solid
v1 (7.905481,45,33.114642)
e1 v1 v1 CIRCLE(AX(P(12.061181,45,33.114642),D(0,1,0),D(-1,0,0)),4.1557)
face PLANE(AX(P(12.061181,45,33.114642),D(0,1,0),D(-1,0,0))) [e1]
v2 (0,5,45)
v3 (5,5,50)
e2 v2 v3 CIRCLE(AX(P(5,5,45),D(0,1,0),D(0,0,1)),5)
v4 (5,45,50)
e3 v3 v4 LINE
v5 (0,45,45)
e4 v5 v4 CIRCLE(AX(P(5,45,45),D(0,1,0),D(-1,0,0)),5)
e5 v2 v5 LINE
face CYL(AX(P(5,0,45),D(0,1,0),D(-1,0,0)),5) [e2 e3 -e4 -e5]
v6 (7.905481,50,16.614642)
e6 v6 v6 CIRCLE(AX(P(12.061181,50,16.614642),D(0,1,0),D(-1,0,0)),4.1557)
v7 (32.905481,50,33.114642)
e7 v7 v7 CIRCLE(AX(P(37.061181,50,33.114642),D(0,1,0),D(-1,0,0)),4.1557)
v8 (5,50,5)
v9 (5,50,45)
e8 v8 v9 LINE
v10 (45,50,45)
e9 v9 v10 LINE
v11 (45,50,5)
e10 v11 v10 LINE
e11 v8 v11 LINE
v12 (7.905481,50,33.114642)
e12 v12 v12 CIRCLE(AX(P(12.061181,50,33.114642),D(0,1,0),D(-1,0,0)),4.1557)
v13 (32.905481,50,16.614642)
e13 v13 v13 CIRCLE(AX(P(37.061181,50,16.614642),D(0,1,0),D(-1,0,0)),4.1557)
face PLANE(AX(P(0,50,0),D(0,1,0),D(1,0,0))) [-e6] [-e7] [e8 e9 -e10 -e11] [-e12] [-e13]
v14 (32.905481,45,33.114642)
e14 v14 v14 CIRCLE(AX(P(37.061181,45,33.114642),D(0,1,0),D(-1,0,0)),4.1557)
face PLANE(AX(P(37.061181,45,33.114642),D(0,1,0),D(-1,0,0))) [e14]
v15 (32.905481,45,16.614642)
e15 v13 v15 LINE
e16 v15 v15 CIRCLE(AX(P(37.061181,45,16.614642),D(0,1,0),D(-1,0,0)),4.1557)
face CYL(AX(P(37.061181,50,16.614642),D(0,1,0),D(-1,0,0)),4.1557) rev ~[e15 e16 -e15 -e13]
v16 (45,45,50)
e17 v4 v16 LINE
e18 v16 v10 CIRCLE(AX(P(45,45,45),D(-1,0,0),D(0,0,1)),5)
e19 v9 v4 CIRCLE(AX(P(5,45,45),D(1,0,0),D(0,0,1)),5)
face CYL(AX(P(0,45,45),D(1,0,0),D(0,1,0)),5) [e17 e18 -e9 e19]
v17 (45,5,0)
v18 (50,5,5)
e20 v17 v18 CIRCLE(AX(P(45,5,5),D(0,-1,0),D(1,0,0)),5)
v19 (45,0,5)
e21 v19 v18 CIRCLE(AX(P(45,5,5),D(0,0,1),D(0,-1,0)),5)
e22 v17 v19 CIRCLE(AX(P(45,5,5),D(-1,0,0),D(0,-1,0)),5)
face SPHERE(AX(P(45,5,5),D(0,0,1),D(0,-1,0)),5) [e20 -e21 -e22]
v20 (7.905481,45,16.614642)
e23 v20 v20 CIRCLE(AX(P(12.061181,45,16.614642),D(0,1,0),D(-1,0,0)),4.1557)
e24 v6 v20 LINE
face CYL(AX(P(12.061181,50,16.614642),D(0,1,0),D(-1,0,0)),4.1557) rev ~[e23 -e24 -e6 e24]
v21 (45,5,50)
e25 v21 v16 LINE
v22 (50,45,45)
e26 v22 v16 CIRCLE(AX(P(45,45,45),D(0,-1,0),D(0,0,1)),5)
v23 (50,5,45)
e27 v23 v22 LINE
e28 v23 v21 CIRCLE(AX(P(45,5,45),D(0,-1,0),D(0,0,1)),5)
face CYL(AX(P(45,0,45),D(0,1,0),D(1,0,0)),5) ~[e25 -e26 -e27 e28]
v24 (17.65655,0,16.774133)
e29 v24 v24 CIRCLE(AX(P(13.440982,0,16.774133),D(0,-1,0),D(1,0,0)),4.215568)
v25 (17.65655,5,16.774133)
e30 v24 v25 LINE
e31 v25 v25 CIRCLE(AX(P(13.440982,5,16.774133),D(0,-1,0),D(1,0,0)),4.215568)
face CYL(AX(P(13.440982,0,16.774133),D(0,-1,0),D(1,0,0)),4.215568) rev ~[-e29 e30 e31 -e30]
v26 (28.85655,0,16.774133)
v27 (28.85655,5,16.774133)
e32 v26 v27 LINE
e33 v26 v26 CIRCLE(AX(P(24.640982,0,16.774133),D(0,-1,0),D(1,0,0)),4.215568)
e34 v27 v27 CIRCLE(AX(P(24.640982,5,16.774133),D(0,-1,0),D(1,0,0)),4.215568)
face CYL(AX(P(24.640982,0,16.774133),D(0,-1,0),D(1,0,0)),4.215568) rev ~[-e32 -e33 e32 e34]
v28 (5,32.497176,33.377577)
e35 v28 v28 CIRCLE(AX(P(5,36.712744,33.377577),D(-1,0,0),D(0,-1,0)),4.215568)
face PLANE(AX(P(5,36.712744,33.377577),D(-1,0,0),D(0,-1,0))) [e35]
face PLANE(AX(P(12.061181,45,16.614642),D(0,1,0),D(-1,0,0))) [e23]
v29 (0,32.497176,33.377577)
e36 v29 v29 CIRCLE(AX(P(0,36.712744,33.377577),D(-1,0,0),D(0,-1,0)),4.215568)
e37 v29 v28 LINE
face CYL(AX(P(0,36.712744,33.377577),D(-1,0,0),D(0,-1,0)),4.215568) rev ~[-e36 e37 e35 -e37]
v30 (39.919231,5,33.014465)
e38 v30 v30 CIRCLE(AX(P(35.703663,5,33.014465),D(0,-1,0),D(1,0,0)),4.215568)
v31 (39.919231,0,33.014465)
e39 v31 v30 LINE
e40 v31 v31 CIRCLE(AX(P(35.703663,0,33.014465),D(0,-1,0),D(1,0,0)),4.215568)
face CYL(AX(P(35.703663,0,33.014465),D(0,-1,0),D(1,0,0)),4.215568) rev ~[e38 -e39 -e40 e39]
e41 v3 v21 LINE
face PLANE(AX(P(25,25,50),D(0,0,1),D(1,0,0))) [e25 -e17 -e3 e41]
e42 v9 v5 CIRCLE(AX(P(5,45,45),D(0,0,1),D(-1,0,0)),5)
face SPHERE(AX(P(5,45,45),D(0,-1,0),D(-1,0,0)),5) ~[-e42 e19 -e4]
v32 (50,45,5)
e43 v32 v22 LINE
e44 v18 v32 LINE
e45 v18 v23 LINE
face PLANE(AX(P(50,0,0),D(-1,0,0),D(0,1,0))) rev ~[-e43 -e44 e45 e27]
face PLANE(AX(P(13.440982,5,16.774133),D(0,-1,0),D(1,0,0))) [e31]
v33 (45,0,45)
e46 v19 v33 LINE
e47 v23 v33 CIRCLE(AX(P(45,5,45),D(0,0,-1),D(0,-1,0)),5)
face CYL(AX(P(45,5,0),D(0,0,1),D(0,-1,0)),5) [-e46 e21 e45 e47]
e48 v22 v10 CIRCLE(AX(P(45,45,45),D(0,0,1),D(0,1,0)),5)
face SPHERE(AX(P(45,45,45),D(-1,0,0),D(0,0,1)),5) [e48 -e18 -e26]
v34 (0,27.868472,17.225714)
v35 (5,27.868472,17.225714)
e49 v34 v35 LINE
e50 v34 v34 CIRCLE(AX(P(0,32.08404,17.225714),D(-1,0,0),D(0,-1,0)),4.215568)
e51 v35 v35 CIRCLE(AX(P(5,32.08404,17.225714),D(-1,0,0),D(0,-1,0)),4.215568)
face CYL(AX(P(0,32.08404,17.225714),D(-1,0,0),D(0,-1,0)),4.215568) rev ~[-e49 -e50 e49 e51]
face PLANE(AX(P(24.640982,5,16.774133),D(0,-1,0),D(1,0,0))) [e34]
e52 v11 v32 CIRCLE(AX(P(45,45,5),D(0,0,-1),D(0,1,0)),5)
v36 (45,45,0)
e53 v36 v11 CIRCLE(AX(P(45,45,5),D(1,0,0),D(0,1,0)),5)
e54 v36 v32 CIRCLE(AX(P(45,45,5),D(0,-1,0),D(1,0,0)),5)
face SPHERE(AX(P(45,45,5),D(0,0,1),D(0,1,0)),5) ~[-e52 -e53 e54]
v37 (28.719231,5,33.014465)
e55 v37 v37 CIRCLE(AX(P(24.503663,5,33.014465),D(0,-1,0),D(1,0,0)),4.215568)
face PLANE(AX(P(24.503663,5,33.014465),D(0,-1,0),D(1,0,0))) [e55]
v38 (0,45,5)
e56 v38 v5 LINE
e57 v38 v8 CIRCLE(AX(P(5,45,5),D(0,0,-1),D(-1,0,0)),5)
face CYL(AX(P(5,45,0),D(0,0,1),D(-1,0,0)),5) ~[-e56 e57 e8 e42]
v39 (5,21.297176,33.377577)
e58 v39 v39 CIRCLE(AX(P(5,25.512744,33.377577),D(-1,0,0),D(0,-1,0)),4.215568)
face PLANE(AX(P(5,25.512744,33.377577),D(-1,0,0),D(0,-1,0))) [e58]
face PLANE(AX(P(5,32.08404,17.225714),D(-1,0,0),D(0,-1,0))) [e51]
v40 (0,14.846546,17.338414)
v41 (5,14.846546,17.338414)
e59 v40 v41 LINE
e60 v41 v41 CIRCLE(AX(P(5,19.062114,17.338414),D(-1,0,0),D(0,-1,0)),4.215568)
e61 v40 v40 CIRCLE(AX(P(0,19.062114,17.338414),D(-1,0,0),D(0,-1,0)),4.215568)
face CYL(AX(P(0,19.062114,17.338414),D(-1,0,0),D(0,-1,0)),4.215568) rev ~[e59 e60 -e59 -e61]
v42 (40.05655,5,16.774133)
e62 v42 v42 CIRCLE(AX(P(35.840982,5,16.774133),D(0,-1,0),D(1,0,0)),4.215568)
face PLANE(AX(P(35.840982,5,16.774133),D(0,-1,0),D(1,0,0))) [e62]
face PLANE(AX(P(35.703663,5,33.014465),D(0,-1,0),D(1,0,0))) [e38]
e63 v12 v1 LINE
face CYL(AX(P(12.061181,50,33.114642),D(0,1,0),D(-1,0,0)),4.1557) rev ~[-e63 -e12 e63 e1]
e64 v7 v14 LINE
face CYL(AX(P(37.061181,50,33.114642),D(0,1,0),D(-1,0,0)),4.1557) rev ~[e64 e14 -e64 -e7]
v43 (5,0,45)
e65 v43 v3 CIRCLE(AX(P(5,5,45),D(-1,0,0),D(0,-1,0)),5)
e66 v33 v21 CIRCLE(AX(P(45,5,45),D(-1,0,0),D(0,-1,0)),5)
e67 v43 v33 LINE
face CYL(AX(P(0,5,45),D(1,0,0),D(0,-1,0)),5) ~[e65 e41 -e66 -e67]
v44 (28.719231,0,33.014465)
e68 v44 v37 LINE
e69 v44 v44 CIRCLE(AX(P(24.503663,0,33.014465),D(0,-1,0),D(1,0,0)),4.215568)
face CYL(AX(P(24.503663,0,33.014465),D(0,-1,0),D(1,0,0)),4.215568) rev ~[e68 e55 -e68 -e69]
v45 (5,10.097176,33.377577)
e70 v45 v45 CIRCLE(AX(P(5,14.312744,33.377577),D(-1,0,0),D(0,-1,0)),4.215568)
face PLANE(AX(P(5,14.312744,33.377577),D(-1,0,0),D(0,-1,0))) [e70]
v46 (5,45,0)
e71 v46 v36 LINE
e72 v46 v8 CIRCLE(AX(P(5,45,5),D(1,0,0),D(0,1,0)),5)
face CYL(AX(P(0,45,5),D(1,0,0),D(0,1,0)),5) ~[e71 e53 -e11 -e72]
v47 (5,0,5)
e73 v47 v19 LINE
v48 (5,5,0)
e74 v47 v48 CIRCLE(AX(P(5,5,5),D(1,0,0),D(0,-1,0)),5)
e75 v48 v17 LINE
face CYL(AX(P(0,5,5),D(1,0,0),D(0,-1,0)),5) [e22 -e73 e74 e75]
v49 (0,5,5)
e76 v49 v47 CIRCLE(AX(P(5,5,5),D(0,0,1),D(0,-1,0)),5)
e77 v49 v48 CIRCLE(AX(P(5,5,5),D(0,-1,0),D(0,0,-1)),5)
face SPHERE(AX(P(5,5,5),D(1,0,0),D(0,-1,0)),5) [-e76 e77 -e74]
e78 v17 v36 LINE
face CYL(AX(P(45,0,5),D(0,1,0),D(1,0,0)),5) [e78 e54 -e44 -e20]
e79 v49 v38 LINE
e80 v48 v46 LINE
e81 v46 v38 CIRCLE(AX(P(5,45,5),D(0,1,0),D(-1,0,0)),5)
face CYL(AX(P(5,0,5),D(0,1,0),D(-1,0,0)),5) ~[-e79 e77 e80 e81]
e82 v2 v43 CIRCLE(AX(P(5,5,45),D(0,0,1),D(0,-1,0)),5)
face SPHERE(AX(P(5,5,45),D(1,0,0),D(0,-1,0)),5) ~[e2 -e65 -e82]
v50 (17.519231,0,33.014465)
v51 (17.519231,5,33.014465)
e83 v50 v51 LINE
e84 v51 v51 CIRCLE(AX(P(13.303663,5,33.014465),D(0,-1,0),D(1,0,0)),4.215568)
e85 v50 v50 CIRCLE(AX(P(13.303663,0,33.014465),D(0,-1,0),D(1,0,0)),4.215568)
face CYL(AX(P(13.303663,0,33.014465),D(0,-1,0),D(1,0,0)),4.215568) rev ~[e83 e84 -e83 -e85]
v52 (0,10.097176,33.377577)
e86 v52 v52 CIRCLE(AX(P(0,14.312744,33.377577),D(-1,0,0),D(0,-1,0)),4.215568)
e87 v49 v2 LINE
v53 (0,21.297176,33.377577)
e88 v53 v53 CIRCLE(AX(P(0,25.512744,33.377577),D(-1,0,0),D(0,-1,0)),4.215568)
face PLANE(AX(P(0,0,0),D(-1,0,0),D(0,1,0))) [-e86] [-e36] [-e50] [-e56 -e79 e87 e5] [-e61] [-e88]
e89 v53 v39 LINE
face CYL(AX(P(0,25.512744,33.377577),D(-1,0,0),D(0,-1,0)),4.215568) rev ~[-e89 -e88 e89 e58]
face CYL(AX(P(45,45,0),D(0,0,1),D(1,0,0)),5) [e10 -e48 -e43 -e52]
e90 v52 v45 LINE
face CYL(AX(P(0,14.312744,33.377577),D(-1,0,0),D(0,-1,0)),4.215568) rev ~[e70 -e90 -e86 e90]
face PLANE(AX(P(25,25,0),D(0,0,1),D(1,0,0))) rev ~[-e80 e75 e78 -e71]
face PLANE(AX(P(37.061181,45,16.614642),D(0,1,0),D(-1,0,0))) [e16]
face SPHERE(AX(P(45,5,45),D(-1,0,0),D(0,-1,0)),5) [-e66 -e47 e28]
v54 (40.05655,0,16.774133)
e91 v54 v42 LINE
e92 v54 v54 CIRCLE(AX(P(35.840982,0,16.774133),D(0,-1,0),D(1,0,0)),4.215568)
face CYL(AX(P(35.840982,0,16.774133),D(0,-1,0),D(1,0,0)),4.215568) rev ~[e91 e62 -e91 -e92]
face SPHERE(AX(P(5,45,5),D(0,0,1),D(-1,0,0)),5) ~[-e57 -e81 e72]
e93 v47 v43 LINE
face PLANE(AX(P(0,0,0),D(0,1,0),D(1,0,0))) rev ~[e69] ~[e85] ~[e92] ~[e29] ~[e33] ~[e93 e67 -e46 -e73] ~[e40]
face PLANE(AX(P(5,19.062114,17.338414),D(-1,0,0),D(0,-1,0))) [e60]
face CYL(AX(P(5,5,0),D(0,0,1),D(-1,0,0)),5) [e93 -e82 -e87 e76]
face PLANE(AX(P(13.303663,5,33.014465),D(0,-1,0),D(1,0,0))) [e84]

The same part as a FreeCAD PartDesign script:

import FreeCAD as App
import Part
import Sketcher

V = App.Vector
Q = App.Units.Quantity


def add_polygon(sketch, points):
    """Adds a closed chain of lines whose ends are joined by coincident constraints."""
    first, n = sketch.GeometryCount, len(points)
    for a, b in zip(points, points[1:] + points[:1]):
        sketch.addGeometry(Part.LineSegment(App.Vector(*a, 0), App.Vector(*b, 0)), False)
    for i in range(n):
        sketch.addConstraint(Sketcher.Constraint("Coincident", first + i, 2, first + (i + 1) % n, 1))

doc = App.newDocument("Part")
params = doc.addObject("Spreadsheet::Sheet", "Params")
for row, (alias, value) in enumerate([
    ("sketch1_width", "50 mm"),
    ("pad1_length", "50 mm"),
    ("fillet_radius", "5 mm"),
    ("pocket1_length", "5 mm"),
    ("pocket2_length", "5 mm"),
    ("pocket3_length", "5 mm"),
], start=1):
    params.set(f"A{row}", alias)
    params.set(f"B{row}", "=" + value)
    params.setAlias(f"B{row}", alias)

body = doc.addObject("PartDesign::Body", "Body")

# Sketch on XY plane
sketch1 = body.newObject("Sketcher::SketchObject", "Sketch")
sketch1.AttachmentSupport = (doc.getObject("XY_Plane"), [""])
sketch1.MapMode = "FlatFace"
add_polygon(sketch1, [(0, 50), (0, 0), (50, 0), (50, 50)])  # lines 0-3
sketch1.addConstraint([
    Sketcher.Constraint("Vertical", 0),
    Sketcher.Constraint("Horizontal", 1),
    Sketcher.Constraint("Vertical", 2),
    Sketcher.Constraint("Horizontal", 3),
    Sketcher.Constraint("Coincident", 0, 2, -1, 1),
    Sketcher.Constraint("Equal", 3, 0),
    Sketcher.Constraint("DistanceX", 1, 1, 1, 2, Q("50 mm")),
])
sketch1.setExpression("Constraints[10]", "Params.sketch1_width")
pad1 = body.newObject("PartDesign::Pad", "Pad")
pad1.Profile = sketch1
pad1.setExpression("Length", "Params.pad1_length")
doc.recompute()

fillet = body.newObject("PartDesign::Fillet", "Fillet")
fillet.Base = (pad1, ["Edge1"])
fillet.UseAllEdges = True
fillet.setExpression("Radius", "Params.fillet_radius")

# Sketch on XZ plane
sketch2 = body.newObject("Sketcher::SketchObject", "Sketch001")
sketch2.AttachmentSupport = (doc.getObject("XZ_Plane"), [""])
sketch2.MapMode = "FlatFace"
sketch2.addGeometry([
    Part.Circle(V(13.3, 33, 0), V(0, 0, 1), 4.2),  # 0
    Part.Circle(V(24.5, 33, 0), V(0, 0, 1), 4.2),  # 1
    Part.Circle(V(35.7, 33, 0), V(0, 0, 1), 4.2),  # 2
    Part.Circle(V(13.4, 16.8, 0), V(0, 0, 1), 4.2),  # 3
    Part.Circle(V(24.6, 16.8, 0), V(0, 0, 1), 4.2),  # 4
    Part.Circle(V(35.8, 16.8, 0), V(0, 0, 1), 4.2),  # 5
], False)
sketch2.addConstraint([
    Sketcher.Constraint("Equal", 0, 1),
    Sketcher.Constraint("Equal", 1, 2),
    Sketcher.Constraint("Equal", 2, 3),
    Sketcher.Constraint("Equal", 3, 4),
    Sketcher.Constraint("Equal", 4, 5),
    Sketcher.Constraint("Horizontal", 0, 3, 1, 3),
    Sketcher.Constraint("Horizontal", 1, 3, 2, 3),
    Sketcher.Constraint("Horizontal", 3, 3, 4, 3),
    Sketcher.Constraint("Horizontal", 4, 3, 5, 3),
    Sketcher.Constraint("DistanceX", 0, 3, 1, 3, Q("11.2 mm")),
    Sketcher.Constraint("DistanceX", 1, 3, 2, 3, Q("11.2 mm")),
    Sketcher.Constraint("DistanceX", 3, 3, 4, 3, Q("11.2 mm")),
    Sketcher.Constraint("DistanceX", 4, 3, 5, 3, Q("11.2 mm")),
    Sketcher.Constraint("Diameter", 0, Q("8.431136 mm")),
    Sketcher.Constraint("DistanceX", -1, 1, 5, 3, Q("35.840982 mm")),
    Sketcher.Constraint("DistanceX", 0, 3, 3, 3, Q("0.137319 mm")),
    Sketcher.Constraint("DistanceY", -1, 1, 0, 3, Q("33.014465 mm")),
    Sketcher.Constraint("DistanceY", -1, 1, 3, 3, Q("16.774133 mm")),
])
pocket1 = body.newObject("PartDesign::Pocket", "Pocket")
pocket1.Profile = sketch2
pocket1.setExpression("Length", "Params.pocket1_length")

# Sketch on YZ plane
sketch3 = body.newObject("Sketcher::SketchObject", "Sketch002")
sketch3.AttachmentSupport = (doc.getObject("YZ_Plane"), [""])
sketch3.MapMode = "FlatFace"
sketch3.addGeometry([
    Part.Circle(V(36.7, 33.4, 0), V(0, 0, 1), 4.2),  # 0
    Part.Circle(V(25.5, 33.4, 0), V(0, 0, 1), 4.2),  # 1
    Part.Circle(V(14.3, 33.4, 0), V(0, 0, 1), 4.2),  # 2
    Part.Circle(V(32.1, 17.2, 0), V(0, 0, 1), 4.2),  # 3
    Part.Circle(V(19.1, 17.3, 0), V(0, 0, 1), 4.2),  # 4
], False)
sketch3.addConstraint([
    Sketcher.Constraint("Equal", 0, 1),
    Sketcher.Constraint("Equal", 1, 2),
    Sketcher.Constraint("Equal", 2, 3),
    Sketcher.Constraint("Equal", 3, 4),
    Sketcher.Constraint("Horizontal", 0, 3, 1, 3),
    Sketcher.Constraint("Horizontal", 1, 3, 2, 3),
    Sketcher.Constraint("DistanceX", 1, 3, 0, 3, Q("11.2 mm")),
    Sketcher.Constraint("DistanceX", 2, 3, 1, 3, Q("11.2 mm")),
    Sketcher.Constraint("Diameter", 0, Q("8.431136 mm")),
    Sketcher.Constraint("DistanceY", 3, 3, 4, 3, Q("0.1127 mm")),
    Sketcher.Constraint("DistanceX", -1, 1, 3, 3, Q("32.08404 mm")),
    Sketcher.Constraint("DistanceX", 2, 3, 4, 3, Q("4.74937 mm")),
    Sketcher.Constraint("DistanceX", -1, 1, 0, 3, Q("36.712744 mm")),
    Sketcher.Constraint("DistanceY", -1, 1, 0, 3, Q("33.377577 mm")),
    Sketcher.Constraint("DistanceY", -1, 1, 3, 3, Q("17.225714 mm")),
])
pocket2 = body.newObject("PartDesign::Pocket", "Pocket001")
pocket2.Profile = sketch3
pocket2.setExpression("Length", "Params.pocket2_length")
pocket2.Reversed = True

# Sketch on XZ plane
sketch4 = body.newObject("Sketcher::SketchObject", "Sketch003")
sketch4.AttachmentSupport = (doc.getObject("XZ_Plane"), [""])
sketch4.MapMode = "FlatFace"
sketch4.AttachmentOffset = App.Placement(V(0, 0, -50), App.Rotation())
sketch4.addGeometry([
    Part.Circle(V(12.1, 16.6, 0), V(0, 0, 1), 4.2),
    Part.Circle(V(37.1, 16.6, 0), V(0, 0, 1), 4.2),
    Part.Circle(V(12.1, 33.1, 0), V(0, 0, 1), 4.2),
    Part.Circle(V(37.1, 33.1, 0), V(0, 0, 1), 4.2),
], False)
sketch4.addConstraint([
    Sketcher.Constraint("Equal", 0, 1),
    Sketcher.Constraint("Equal", 1, 2),
    Sketcher.Constraint("Equal", 2, 3),
    Sketcher.Constraint("Horizontal", 0, 3, 1, 3),
    Sketcher.Constraint("Horizontal", 2, 3, 3, 3),
    Sketcher.Constraint("Vertical", 0, 3, 2, 3),
    Sketcher.Constraint("Vertical", 1, 3, 3, 3),
    Sketcher.Constraint("DistanceX", 0, 3, 1, 3, Q("25 mm")),
    Sketcher.Constraint("Diameter", 0, Q("8.3114 mm")),
    Sketcher.Constraint("DistanceY", 0, 3, 2, 3, Q("16.5 mm")),
    Sketcher.Constraint("DistanceX", -1, 1, 0, 3, Q("12.061181 mm")),
    Sketcher.Constraint("DistanceY", -1, 1, 0, 3, Q("16.614642 mm")),
])
pocket3 = body.newObject("PartDesign::Pocket", "Pocket002")
pocket3.Profile = sketch4
pocket3.setExpression("Length", "Params.pocket3_length")
pocket3.Reversed = True

doc.recompute()
